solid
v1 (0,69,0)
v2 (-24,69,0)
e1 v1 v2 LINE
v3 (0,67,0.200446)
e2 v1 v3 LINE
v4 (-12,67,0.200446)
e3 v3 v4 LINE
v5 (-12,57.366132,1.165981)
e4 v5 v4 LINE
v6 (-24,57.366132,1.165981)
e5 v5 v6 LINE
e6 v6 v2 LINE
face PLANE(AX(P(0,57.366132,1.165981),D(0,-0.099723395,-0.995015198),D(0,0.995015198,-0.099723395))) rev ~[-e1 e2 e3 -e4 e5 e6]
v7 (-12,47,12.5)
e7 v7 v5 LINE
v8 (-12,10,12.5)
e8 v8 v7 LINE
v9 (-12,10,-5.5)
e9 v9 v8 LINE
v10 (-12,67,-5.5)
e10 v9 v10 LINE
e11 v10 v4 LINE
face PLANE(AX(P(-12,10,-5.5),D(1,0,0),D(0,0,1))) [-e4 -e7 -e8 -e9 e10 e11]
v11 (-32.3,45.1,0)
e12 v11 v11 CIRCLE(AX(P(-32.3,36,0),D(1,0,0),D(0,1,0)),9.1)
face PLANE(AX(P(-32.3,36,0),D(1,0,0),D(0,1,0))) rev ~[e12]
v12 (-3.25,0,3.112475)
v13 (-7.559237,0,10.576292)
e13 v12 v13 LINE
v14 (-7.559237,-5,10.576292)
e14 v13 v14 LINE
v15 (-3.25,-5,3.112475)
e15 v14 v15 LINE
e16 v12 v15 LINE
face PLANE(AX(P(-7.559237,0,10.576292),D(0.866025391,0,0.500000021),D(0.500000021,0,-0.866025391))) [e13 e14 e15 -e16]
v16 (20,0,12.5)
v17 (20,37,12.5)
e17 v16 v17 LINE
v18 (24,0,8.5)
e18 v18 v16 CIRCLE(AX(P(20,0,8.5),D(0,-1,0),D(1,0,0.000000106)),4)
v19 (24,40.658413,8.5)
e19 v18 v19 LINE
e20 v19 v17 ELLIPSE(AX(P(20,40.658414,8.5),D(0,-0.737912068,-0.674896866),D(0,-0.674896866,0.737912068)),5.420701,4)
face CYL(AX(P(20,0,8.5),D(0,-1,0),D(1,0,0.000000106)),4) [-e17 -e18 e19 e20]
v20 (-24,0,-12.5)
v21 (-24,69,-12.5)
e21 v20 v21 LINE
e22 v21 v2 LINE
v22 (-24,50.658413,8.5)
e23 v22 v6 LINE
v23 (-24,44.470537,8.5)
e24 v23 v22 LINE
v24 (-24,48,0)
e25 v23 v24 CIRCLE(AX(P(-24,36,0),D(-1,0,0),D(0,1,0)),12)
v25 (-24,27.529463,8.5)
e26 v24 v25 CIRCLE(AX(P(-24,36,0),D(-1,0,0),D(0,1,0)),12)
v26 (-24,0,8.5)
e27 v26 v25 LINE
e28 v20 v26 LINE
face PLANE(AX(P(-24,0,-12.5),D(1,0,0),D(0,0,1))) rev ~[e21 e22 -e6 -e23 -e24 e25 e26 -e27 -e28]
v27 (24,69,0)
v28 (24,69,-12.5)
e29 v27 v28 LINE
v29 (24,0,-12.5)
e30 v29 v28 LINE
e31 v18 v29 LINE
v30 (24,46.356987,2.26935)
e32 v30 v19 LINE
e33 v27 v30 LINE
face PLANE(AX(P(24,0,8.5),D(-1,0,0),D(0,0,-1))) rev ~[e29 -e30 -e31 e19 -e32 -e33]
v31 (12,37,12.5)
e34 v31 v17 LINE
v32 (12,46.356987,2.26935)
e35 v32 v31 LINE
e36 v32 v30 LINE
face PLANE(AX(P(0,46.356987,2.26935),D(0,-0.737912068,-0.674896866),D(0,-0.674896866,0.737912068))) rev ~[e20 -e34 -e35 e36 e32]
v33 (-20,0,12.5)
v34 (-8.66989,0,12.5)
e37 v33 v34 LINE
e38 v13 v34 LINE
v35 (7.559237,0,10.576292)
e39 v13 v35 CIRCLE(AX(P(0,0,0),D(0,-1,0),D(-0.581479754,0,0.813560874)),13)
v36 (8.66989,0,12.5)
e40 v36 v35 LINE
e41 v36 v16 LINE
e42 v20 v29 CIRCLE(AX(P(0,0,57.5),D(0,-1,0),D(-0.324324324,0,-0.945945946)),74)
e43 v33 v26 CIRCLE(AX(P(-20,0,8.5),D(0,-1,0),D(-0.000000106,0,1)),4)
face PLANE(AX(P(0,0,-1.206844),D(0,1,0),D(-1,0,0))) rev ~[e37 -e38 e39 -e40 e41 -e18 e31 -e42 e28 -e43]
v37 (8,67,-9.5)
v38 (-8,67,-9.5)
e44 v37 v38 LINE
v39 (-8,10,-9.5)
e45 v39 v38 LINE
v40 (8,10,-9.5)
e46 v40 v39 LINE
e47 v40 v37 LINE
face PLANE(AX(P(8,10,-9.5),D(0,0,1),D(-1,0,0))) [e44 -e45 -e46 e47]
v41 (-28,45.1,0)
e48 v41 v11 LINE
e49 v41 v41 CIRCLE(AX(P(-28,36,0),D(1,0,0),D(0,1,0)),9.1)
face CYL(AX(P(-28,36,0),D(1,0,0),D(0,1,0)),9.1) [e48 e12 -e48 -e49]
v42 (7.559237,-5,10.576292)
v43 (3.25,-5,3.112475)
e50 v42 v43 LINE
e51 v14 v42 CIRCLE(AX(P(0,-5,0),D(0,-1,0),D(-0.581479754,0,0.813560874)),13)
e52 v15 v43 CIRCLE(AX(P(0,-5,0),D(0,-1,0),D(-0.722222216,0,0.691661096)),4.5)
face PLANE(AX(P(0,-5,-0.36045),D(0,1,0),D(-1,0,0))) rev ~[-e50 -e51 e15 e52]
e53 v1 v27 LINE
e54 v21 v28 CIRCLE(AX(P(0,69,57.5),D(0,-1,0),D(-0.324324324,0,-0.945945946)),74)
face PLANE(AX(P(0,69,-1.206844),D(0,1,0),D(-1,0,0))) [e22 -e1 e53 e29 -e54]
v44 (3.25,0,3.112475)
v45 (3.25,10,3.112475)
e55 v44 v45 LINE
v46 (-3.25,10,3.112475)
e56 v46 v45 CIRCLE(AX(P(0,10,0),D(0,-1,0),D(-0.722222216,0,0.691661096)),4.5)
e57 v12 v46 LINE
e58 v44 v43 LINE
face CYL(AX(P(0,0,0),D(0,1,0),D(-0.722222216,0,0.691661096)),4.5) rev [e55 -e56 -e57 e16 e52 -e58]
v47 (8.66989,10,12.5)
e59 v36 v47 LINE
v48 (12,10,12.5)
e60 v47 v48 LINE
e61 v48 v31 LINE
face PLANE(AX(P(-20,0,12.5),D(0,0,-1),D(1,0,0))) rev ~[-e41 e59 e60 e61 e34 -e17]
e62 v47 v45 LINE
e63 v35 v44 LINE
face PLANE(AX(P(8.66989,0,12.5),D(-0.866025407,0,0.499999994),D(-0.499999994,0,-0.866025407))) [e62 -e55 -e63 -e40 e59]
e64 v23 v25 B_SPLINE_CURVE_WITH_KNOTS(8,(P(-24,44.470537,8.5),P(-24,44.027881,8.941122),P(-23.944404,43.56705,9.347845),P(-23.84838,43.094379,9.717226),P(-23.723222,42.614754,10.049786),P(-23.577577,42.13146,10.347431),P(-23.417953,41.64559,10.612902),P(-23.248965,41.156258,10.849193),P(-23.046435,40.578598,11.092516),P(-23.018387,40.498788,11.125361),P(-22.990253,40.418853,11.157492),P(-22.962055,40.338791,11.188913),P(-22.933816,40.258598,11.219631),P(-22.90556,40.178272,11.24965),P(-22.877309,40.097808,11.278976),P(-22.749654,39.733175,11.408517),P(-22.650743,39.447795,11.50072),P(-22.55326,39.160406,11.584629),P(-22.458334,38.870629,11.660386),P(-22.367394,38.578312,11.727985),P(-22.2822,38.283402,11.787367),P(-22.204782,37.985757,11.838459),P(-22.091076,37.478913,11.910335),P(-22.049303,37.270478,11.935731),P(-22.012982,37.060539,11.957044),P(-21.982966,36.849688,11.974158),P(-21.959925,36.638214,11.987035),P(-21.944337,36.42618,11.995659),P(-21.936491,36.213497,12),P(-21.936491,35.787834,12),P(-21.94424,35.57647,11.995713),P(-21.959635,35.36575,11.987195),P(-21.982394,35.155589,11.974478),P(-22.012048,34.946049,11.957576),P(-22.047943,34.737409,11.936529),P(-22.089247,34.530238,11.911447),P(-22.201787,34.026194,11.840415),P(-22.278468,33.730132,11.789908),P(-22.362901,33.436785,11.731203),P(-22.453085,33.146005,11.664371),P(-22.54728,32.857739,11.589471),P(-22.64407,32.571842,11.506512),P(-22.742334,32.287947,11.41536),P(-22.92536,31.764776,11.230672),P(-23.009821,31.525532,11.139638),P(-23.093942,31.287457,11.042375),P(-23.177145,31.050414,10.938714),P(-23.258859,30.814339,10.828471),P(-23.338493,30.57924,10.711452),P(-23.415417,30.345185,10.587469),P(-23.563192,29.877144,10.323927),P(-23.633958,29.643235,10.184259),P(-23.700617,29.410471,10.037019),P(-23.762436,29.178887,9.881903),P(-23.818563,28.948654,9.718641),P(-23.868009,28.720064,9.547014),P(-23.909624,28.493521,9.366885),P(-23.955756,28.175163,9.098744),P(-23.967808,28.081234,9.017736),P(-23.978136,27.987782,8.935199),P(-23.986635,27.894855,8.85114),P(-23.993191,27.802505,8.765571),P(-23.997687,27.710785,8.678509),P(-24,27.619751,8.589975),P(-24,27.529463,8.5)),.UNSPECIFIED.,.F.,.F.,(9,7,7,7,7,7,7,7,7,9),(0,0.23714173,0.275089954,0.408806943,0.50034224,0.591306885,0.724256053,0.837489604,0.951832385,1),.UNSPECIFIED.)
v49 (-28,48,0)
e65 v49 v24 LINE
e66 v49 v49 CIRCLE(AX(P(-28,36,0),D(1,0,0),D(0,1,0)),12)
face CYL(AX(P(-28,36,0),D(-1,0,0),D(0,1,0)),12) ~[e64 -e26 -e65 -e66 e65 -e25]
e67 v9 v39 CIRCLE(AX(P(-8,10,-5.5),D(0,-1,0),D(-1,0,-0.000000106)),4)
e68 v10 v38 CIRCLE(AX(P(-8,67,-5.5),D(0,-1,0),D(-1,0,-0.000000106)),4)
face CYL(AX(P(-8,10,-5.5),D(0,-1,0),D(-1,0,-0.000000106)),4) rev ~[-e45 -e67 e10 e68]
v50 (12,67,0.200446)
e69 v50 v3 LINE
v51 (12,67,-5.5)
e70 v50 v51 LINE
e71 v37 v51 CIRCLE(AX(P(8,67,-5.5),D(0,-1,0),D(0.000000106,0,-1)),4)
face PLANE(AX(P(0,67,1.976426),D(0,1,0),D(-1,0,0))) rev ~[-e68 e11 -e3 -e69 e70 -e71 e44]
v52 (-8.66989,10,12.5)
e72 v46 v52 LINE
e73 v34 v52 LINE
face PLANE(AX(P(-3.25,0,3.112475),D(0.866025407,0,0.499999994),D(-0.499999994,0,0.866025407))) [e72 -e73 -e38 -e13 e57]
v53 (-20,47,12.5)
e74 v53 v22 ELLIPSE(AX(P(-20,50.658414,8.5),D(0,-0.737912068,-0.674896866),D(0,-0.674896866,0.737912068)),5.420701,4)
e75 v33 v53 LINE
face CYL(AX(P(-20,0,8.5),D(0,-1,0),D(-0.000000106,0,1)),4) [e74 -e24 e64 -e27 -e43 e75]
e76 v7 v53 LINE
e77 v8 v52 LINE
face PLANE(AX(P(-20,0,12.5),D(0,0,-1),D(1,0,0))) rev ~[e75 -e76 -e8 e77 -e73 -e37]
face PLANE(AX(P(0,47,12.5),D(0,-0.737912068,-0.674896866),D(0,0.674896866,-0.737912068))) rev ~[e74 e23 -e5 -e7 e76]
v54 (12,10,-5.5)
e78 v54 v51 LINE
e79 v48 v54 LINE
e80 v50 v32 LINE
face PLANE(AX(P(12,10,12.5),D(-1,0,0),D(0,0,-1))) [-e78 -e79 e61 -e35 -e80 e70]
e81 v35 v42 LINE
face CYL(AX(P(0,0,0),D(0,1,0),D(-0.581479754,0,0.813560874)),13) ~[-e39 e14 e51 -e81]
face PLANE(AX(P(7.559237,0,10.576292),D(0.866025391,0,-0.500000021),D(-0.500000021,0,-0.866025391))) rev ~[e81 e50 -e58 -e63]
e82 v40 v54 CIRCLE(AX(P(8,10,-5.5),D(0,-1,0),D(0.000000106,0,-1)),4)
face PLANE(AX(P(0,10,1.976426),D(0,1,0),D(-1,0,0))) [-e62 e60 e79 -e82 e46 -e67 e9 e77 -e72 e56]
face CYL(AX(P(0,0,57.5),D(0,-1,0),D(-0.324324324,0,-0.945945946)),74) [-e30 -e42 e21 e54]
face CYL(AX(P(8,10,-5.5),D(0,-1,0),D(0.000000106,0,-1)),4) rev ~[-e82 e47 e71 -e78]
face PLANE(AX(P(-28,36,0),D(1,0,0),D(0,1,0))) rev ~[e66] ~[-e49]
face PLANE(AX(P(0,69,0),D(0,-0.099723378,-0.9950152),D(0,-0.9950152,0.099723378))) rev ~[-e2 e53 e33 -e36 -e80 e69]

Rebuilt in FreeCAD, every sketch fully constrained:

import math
import FreeCAD as App
import Part
import Sketcher
from FreeCAD import Vector
Q = App.Units.Quantity


def add_polygon(sketch, points):
    """Adds a closed chain of lines whose ends are joined by coincident constraints."""
    first, n = sketch.GeometryCount, len(points)
    for a, b in zip(points, points[1:] + points[:1]):
        sketch.addGeometry(Part.LineSegment(App.Vector(*a, 0), App.Vector(*b, 0)), False)
    for i in range(n):
        sketch.addConstraint(Sketcher.Constraint("Coincident", first + i, 2, first + (i + 1) % n, 1))

doc = App.newDocument("Part")
body = doc.addObject("PartDesign::Body", "Body")

# Sketch on XZ plane
sketch1 = body.newObject("Sketcher::SketchObject", "Sketch")
sketch1.AttachmentSupport = (doc.getObject("XZ_Plane"), [""])
sketch1.MapMode = "FlatFace"
sketch1.addGeometry([
    Part.LineSegment(Vector(-24, 8.5, 0), Vector(-24, -12.5, 0)),  # 0
    Part.ArcOfCircle(Part.Circle(Vector(0, 57.5, 0), Vector(0, 0, 1), 74), math.radians(-109), math.radians(-71)),  # 1
    Part.LineSegment(Vector(24, -12.5, 0), Vector(24, 8.5, 0)),  # 2
    Part.ArcOfCircle(Part.Circle(Vector(20, 8.5, 0), Vector(0, 0, 1), 4), math.radians(0), math.radians(90)),  # 3
    Part.LineSegment(Vector(20, 12.5, 0), Vector(-20, 12.5, 0)),  # 4
    Part.ArcOfCircle(Part.Circle(Vector(-20, 8.5, 0), Vector(0, 0, 1), 4), math.radians(90), math.radians(180)),  # 5
], False)
sketch1.addConstraint([
    Sketcher.Constraint("Coincident", 0, 2, 1, 1),
    Sketcher.Constraint("Coincident", 1, 2, 2, 1),
    Sketcher.Constraint("Tangent", 2, 2, 3, 1),
    Sketcher.Constraint("Tangent", 3, 2, 4, 1),
    Sketcher.Constraint("Tangent", 4, 2, 5, 1),
    Sketcher.Constraint("Tangent", 5, 2, 0, 1),
    Sketcher.Constraint("Vertical", 0),
    Sketcher.Constraint("Vertical", 2),
    Sketcher.Constraint("Horizontal", 4),
    Sketcher.Constraint("Equal", 3, 5),
    Sketcher.Constraint("Symmetric", 0, 2, 1, 2, -2),
    Sketcher.Constraint("Radius", 1, Q("74 mm")),
    Sketcher.Constraint("Radius", 3, Q("4 mm")),
    Sketcher.Constraint("DistanceX", 4, 2, 4, 1, Q("40 mm")),
    Sketcher.Constraint("DistanceY", 0, 2, 0, 1, Q("21 mm")),
    Sketcher.Constraint("DistanceY", -1, 1, 1, 3, Q("57.5 mm")),
])
pad1 = body.newObject("PartDesign::Pad", "Pad")
pad1.Profile = sketch1
pad1.Length = 69
pad1.Reversed = True

# Sketch on XZ plane
sketch2 = body.newObject("Sketcher::SketchObject", "Sketch001")
sketch2.AttachmentSupport = (doc.getObject("XZ_Plane"), [""])
sketch2.MapMode = "FlatFace"
sketch2.AttachmentOffset = App.Placement(Vector(0, 0, -10), App.Rotation())
sketch2.addGeometry([
    Part.LineSegment(Vector(-12, 12.5, 0), Vector(-12, -5.5, 0)),  # 0
    Part.ArcOfCircle(Part.Circle(Vector(-8, -5.5, 0), Vector(0, 0, 1), 4), math.radians(-180), math.radians(-90)),  # 1
    Part.LineSegment(Vector(-8, -9.5, 0), Vector(8, -9.5, 0)),  # 2
    Part.ArcOfCircle(Part.Circle(Vector(8, -5.5, 0), Vector(0, 0, 1), 4), math.radians(-90), math.radians(0)),  # 3
    Part.LineSegment(Vector(12, -5.5, 0), Vector(12, 12.5, 0)),  # 4
    Part.LineSegment(Vector(12, 12.5, 0), Vector(-12, 12.5, 0)),  # 5
], False)
sketch2.addConstraint([
    Sketcher.Constraint("Tangent", 0, 2, 1, 1),
    Sketcher.Constraint("Tangent", 1, 2, 2, 1),
    Sketcher.Constraint("Tangent", 2, 2, 3, 1),
    Sketcher.Constraint("Tangent", 3, 2, 4, 1),
    Sketcher.Constraint("Coincident", 4, 2, 5, 1),
    Sketcher.Constraint("Coincident", 5, 2, 0, 1),
    Sketcher.Constraint("Vertical", 0),
    Sketcher.Constraint("Horizontal", 2),
    Sketcher.Constraint("Vertical", 4),
    Sketcher.Constraint("Horizontal", 5),
    Sketcher.Constraint("Equal", 1, 3),
    Sketcher.Constraint("Radius", 1, Q("4 mm")),
    Sketcher.Constraint("DistanceX", 2, 1, 2, 2, Q("16 mm")),
    Sketcher.Constraint("DistanceY", 0, 2, 0, 1, Q("18 mm")),
    Sketcher.Constraint("DistanceX", 1, 3, -1, 1, Q("8 mm")),
    Sketcher.Constraint("DistanceY", 1, 3, -1, 1, Q("5.5 mm")),
])
pocket1 = body.newObject("PartDesign::Pocket", "Pocket")
pocket1.Profile = sketch2
pocket1.Length = 57

# Sketch on XZ plane
sketch3 = body.newObject("Sketcher::SketchObject", "Sketch002")
sketch3.AttachmentSupport = (doc.getObject("XZ_Plane"), [""])
sketch3.MapMode = "FlatFace"
sketch3.addGeometry([
    Part.ArcOfCircle(Part.Circle(Vector(0, 0, 0), Vector(0, 0, 1), 4.5), math.radians(136), math.radians(404)),
    Part.LineSegment(Vector(3.2, 3.1, 0), Vector(8.7, 12.5, 0)),
    Part.LineSegment(Vector(8.7, 12.5, 0), Vector(-8.7, 12.5, 0)),
    Part.LineSegment(Vector(-8.7, 12.5, 0), Vector(-3.2, 3.1, 0)),
], False)
sketch3.addConstraint([
    Sketcher.Constraint("Coincident", 0, 2, 1, 1),
    Sketcher.Constraint("Coincident", 1, 2, 2, 1),
    Sketcher.Constraint("Coincident", 2, 2, 3, 1),
    Sketcher.Constraint("Coincident", 3, 2, 0, 1),
    Sketcher.Constraint("Horizontal", 2),
    Sketcher.Constraint("Coincident", 0, 3, -1, 1),
    Sketcher.Constraint("Horizontal", 0, 2, 3, 2),
    Sketcher.Constraint("Equal", 1, 3),
    Sketcher.Constraint("Radius", 0, Q("4.5 mm")),
    Sketcher.Constraint("Angle", 1, Q("60 deg")),
    Sketcher.Constraint("DistanceY", -1, 1, 1, 2, Q("12.5 mm")),
    Sketcher.Constraint("DistanceX", 3, 2, 0, 2, Q("6.5 mm")),
])
pocket2 = body.newObject("PartDesign::Pocket", "Pocket001")
pocket2.Profile = sketch3
pocket2.Length = 10

# Sketch on XZ plane
sketch4 = body.newObject("Sketcher::SketchObject", "Sketch003")
sketch4.AttachmentSupport = (doc.getObject("XZ_Plane"), [""])
sketch4.MapMode = "FlatFace"
sketch4.addGeometry([
    Part.ArcOfCircle(Part.Circle(Vector(0, 0, 0), Vector(0, 0, 1), 4.5), math.radians(136), math.radians(404)),
    Part.LineSegment(Vector(-3.2, 3.1, 0), Vector(-7.6, 10.6, 0)),
    Part.ArcOfCircle(Part.Circle(Vector(0, 0, 0), Vector(0, 0, 1), 13), math.radians(126), math.radians(414)),
    Part.LineSegment(Vector(7.6, 10.6, 0), Vector(3.2, 3.1, 0)),
], False)
sketch4.addConstraint([
    Sketcher.Constraint("Coincident", 0, 1, 1, 1),
    Sketcher.Constraint("Coincident", 1, 2, 2, 1),
    Sketcher.Constraint("Coincident", 2, 2, 3, 1),
    Sketcher.Constraint("Coincident", 3, 2, 0, 2),
    Sketcher.Constraint("Coincident", 0, 3, -1, 1),
    Sketcher.Constraint("Coincident", 2, 3, -1, 1),
    Sketcher.Constraint("Horizontal", 1, 2, 2, 2),
    Sketcher.Constraint("Horizontal", 0, 1, 3, 2),
    Sketcher.Constraint("Radius", 2, Q("13 mm")),
    Sketcher.Constraint("Radius", 0, Q("4.5 mm")),
    Sketcher.Constraint("Angle", 1, Q("120.000001 deg")),
    Sketcher.Constraint("DistanceX", 0, 1, 3, 2, Q("6.5 mm")),
])
pad2 = body.newObject("PartDesign::Pad", "Pad001")
pad2.Profile = sketch4
pad2.Length = 5

# Sketch on YZ plane
sketch5 = body.newObject("Sketcher::SketchObject", "Sketch004")
sketch5.AttachmentSupport = (doc.getObject("YZ_Plane"), [""])
sketch5.MapMode = "FlatFace"
add_polygon(sketch5, [(69, 0), (69, 12), (37, 12), (46, 2)])  # lines 0-3
sketch5.addConstraint([
    Sketcher.Constraint("Vertical", 0),
    Sketcher.Constraint("Horizontal", 1),
    Sketcher.Constraint("PointOnObject", 3, 2, -1),
    Sketcher.Constraint("DistanceX", 1, 2, 1, 1, Q("32 mm")),
    Sketcher.Constraint("DistanceY", 0, 1, 0, 2, Q("12.5 mm")),
    Sketcher.Constraint("DistanceX", -1, 1, 0, 2, Q("69 mm")),
    Sketcher.Constraint("Distance", 2, Q("13.864321 mm")),
    Sketcher.Constraint("Distance", 3, Q("22.756449 mm")),
])
pocket3 = body.newObject("PartDesign::Pocket", "Pocket002")
pocket3.Profile = sketch5
pocket3.Type = "ThroughAll"
pocket3.Reversed = True

# Sketch on YZ plane
sketch6 = body.newObject("Sketcher::SketchObject", "Sketch005")
sketch6.AttachmentSupport = (doc.getObject("YZ_Plane"), [""])
sketch6.MapMode = "FlatFace"
add_polygon(sketch6, [(47, 12), (57, 1), (69, 0), (69, 12)])  # lines 0-3
sketch6.addConstraint([
    Sketcher.Constraint("Vertical", 2),
    Sketcher.Constraint("Horizontal", 3),
    Sketcher.Constraint("PointOnObject", 1, 2, -1),
    Sketcher.Constraint("DistanceX", 3, 2, 3, 1, Q("22 mm")),
    Sketcher.Constraint("DistanceY", 2, 1, 2, 2, Q("12.5 mm")),
    Sketcher.Constraint("DistanceX", -1, 1, 1, 2, Q("69 mm")),
    Sketcher.Constraint("Distance", 0, Q("15.359579 mm")),
    Sketcher.Constraint("Distance", 1, Q("11.692151 mm")),
])
pocket4 = body.newObject("PartDesign::Pocket", "Pocket003")
pocket4.Profile = sketch6
pocket4.Type = "ThroughAll"

# Sketch on YZ plane
sketch7 = body.newObject("Sketcher::SketchObject", "Sketch006")
sketch7.AttachmentSupport = (doc.getObject("YZ_Plane"), [""])
sketch7.MapMode = "FlatFace"
sketch7.AttachmentOffset = App.Placement(Vector(0, 0, -28), App.Rotation())
sketch7.addGeometry(Part.Circle(Vector(36, 0, 0), Vector(0, 0, 1), 12), False)
sketch7.addConstraint([
    Sketcher.Constraint("PointOnObject", 0, 3, -1),
    Sketcher.Constraint("Diameter", 0, Q("24 mm")),
    Sketcher.Constraint("DistanceX", -1, 1, 0, 3, Q("36 mm")),
])
pad3 = body.newObject("PartDesign::Pad", "Pad002")
pad3.Profile = sketch7
pad3.Length = 10

# Sketch on YZ plane
sketch8 = body.newObject("Sketcher::SketchObject", "Sketch007")
sketch8.AttachmentSupport = (doc.getObject("YZ_Plane"), [""])
sketch8.MapMode = "FlatFace"
sketch8.AttachmentOffset = App.Placement(Vector(0, 0, -28), App.Rotation())
sketch8.addGeometry(Part.Circle(Vector(36, 0, 0), Vector(0, 0, 1), 9), False)
sketch8.addConstraint([
    Sketcher.Constraint("PointOnObject", 0, 3, -1),
    Sketcher.Constraint("Diameter", 0, Q("18.2 mm")),
    Sketcher.Constraint("DistanceX", -1, 1, 0, 3, Q("36 mm")),
])
pad4 = body.newObject("PartDesign::Pad", "Pad003")
pad4.Profile = sketch8
pad4.Length = 4.3
pad4.Reversed = True

doc.recompute()
